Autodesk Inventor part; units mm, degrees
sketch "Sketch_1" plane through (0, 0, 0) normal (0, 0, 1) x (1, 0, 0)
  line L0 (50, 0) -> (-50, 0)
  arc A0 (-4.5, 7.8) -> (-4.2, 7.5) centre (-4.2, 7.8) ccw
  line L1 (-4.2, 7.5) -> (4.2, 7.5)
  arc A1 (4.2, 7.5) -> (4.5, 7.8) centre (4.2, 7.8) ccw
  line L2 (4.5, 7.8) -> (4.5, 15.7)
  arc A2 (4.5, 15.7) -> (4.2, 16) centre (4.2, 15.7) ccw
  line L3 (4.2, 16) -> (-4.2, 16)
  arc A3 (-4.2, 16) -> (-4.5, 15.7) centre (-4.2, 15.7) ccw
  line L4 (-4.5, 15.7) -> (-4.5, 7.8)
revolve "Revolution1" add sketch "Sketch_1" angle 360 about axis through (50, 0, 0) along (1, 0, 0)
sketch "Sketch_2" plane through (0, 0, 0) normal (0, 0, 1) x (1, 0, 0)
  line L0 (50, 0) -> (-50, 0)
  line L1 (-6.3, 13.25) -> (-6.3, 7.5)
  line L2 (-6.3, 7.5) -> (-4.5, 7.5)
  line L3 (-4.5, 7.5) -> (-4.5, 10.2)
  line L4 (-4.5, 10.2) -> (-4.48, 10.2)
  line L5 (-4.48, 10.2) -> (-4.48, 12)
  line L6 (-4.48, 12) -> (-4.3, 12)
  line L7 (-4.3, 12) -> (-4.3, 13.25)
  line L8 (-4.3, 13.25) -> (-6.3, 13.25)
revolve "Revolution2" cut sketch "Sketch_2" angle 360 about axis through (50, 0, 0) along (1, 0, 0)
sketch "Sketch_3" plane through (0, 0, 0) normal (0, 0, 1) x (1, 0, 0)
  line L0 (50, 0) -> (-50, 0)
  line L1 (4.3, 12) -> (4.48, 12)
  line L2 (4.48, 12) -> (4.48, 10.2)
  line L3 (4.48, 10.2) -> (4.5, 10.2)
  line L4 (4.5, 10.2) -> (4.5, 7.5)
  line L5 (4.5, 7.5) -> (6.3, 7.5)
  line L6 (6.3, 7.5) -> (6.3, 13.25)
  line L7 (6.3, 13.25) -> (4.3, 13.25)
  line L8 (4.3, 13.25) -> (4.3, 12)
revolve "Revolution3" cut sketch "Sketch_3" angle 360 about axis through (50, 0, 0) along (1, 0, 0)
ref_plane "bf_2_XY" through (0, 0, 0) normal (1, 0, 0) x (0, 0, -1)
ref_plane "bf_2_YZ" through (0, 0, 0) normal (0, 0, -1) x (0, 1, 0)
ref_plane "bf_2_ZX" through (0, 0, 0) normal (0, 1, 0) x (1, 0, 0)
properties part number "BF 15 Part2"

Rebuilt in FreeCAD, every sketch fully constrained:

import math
import FreeCAD as App
import Part
import Sketcher
from FreeCAD import Vector


def add_polygon(sketch, points):
    """Adds a closed chain of lines whose ends are joined by coincident constraints."""
    first, n = sketch.GeometryCount, len(points)
    for a, b in zip(points, points[1:] + points[:1]):
        sketch.addGeometry(Part.LineSegment(App.Vector(*a, 0), App.Vector(*b, 0)), False)
    for i in range(n):
        sketch.addConstraint(Sketcher.Constraint("Coincident", first + i, 2, first + (i + 1) % n, 1))

doc = App.newDocument("Part")
body = doc.addObject("PartDesign::Body", "Body")

# Sketch on XY plane
sketch1 = body.newObject("Sketcher::SketchObject", "Sketch")
sketch1.AttachmentSupport = (doc.getObject("XY_Plane"), [""])
sketch1.MapMode = "FlatFace"
sketch1.addGeometry([
    Part.LineSegment(Vector(-4.5, 15.7, 0), Vector(-4.5, 7.8, 0)),  # 0
    Part.ArcOfCircle(Part.Circle(Vector(-4.2, 7.8, 0), Vector(0, 0, 1), 0.3), math.radians(180), math.radians(270)),  # 1
    Part.LineSegment(Vector(-4.2, 7.5, 0), Vector(4.2, 7.5, 0)),  # 2
    Part.ArcOfCircle(Part.Circle(Vector(4.2, 7.8, 0), Vector(0, 0, 1), 0.3), math.radians(-90), math.radians(0)),  # 3
    Part.LineSegment(Vector(4.5, 7.8, 0), Vector(4.5, 15.7, 0)),  # 4
    Part.ArcOfCircle(Part.Circle(Vector(4.2, 15.7, 0), Vector(0, 0, 1), 0.3), math.radians(0), math.radians(90)),  # 5
    Part.LineSegment(Vector(4.2, 16, 0), Vector(-4.2, 16, 0)),  # 6
    Part.ArcOfCircle(Part.Circle(Vector(-4.2, 15.7, 0), Vector(0, 0, 1), 0.3), math.radians(90), math.radians(180)),  # 7
], False)
sketch1.addConstraint([
    Sketcher.Constraint("Tangent", 0, 2, 1, 1),
    Sketcher.Constraint("Tangent", 1, 2, 2, 1),
    Sketcher.Constraint("Tangent", 2, 2, 3, 1),
    Sketcher.Constraint("Tangent", 3, 2, 4, 1),
    Sketcher.Constraint("Tangent", 4, 2, 5, 1),
    Sketcher.Constraint("Tangent", 5, 2, 6, 1),
    Sketcher.Constraint("Tangent", 6, 2, 7, 1),
    Sketcher.Constraint("Tangent", 7, 2, 0, 1),
    Sketcher.Constraint("Vertical", 0),
    Sketcher.Constraint("Horizontal", 2),
    Sketcher.Constraint("Vertical", 4),
    Sketcher.Constraint("Horizontal", 6),
    Sketcher.Constraint("Equal", 1, 3),
    Sketcher.Constraint("Equal", 3, 5),
    Sketcher.Constraint("Equal", 5, 7),
    Sketcher.Constraint("Radius", 1, 0.3),
    Sketcher.Constraint("DistanceX", 2, 1, 2, 2, 8.4),
    Sketcher.Constraint("DistanceY", 0, 2, 0, 1, 7.9),
    Sketcher.Constraint("DistanceY", -1, 1, 5, 2, 16.0),
    Sketcher.Constraint("DistanceX", 1, 3, -1, 1, 4.2),
])
revolution = body.newObject("PartDesign::Revolution", "Revolution")
revolution.Profile = sketch1
revolution.ReferenceAxis = (sketch1, ["H_Axis"])
revolution.Angle = 360

# Sketch on XY plane
sketch2 = body.newObject("Sketcher::SketchObject", "Sketch001")
sketch2.AttachmentSupport = (doc.getObject("XY_Plane"), [""])
sketch2.MapMode = "FlatFace"
add_polygon(sketch2, [(-4.3, 13.25), (-6.3, 13.25), (-6.3, 7.5), (-4.5, 7.5), (-4.5, 10.2), (-4.48, 10.2), (-4.48, 12), (-4.3, 12)])  # lines 0-7
sketch2.addConstraint([
    Sketcher.Constraint("Horizontal", 0),
    Sketcher.Constraint("Vertical", 1),
    Sketcher.Constraint("Horizontal", 2),
    Sketcher.Constraint("Vertical", 3),
    Sketcher.Constraint("Horizontal", 4),
    Sketcher.Constraint("Vertical", 5),
    Sketcher.Constraint("Horizontal", 6),
    Sketcher.Constraint("Vertical", 7),
    Sketcher.Constraint("Equal", 2, 5),
    Sketcher.Constraint("DistanceX", 0, 2, 0, 1, 2.0),
    Sketcher.Constraint("DistanceX", 2, 1, 2, 2, 1.8),
    Sketcher.Constraint("DistanceY", 3, 1, 3, 2, 2.7),
    Sketcher.Constraint("DistanceY", -1, 1, 5, 2, 12.0),
    Sketcher.Constraint("DistanceX", 4, 1, 4, 2, 0.02),
    Sketcher.Constraint("DistanceY", 1, 2, 1, 1, 5.75),
    Sketcher.Constraint("DistanceX", 0, 2, -1, 1, 6.3),
])
groove = body.newObject("PartDesign::Groove", "Groove")
groove.Profile = sketch2
groove.ReferenceAxis = (sketch2, ["H_Axis"])
groove.Angle = 360

# Sketch on XY plane
sketch3 = body.newObject("Sketcher::SketchObject", "Sketch002")
sketch3.AttachmentSupport = (doc.getObject("XY_Plane"), [""])
sketch3.MapMode = "FlatFace"
add_polygon(sketch3, [(4.3, 13.25), (4.3, 12), (4.48, 12), (4.48, 10.2), (4.5, 10.2), (4.5, 7.5), (6.3, 7.5), (6.3, 13.25)])  # lines 0-7
sketch3.addConstraint([
    Sketcher.Constraint("Vertical", 0),
    Sketcher.Constraint("Horizontal", 1),
    Sketcher.Constraint("Vertical", 2),
    Sketcher.Constraint("Horizontal", 3),
    Sketcher.Constraint("Vertical", 4),
    Sketcher.Constraint("Horizontal", 5),
    Sketcher.Constraint("Vertical", 6),
    Sketcher.Constraint("Horizontal", 7),
    Sketcher.Constraint("Equal", 5, 2),
    Sketcher.Constraint("DistanceX", 7, 2, 7, 1, 2.0),
    Sketcher.Constraint("DistanceX", 5, 1, 5, 2, 1.8),
    Sketcher.Constraint("DistanceY", 4, 2, 4, 1, 2.7),
    Sketcher.Constraint("DistanceY", -1, 1, 0, 2, 12.0),
    Sketcher.Constraint("DistanceX", 1, 1, 1, 2, 0.18),
    Sketcher.Constraint("DistanceY", 0, 2, 0, 1, 1.25),
    Sketcher.Constraint("DistanceX", -1, 1, 0, 2, 4.3),
])
groove2 = body.newObject("PartDesign::Groove", "Groove001")
groove2.Profile = sketch3
groove2.ReferenceAxis = (sketch3, ["H_Axis"])
groove2.Angle = 360

doc.recompute()
